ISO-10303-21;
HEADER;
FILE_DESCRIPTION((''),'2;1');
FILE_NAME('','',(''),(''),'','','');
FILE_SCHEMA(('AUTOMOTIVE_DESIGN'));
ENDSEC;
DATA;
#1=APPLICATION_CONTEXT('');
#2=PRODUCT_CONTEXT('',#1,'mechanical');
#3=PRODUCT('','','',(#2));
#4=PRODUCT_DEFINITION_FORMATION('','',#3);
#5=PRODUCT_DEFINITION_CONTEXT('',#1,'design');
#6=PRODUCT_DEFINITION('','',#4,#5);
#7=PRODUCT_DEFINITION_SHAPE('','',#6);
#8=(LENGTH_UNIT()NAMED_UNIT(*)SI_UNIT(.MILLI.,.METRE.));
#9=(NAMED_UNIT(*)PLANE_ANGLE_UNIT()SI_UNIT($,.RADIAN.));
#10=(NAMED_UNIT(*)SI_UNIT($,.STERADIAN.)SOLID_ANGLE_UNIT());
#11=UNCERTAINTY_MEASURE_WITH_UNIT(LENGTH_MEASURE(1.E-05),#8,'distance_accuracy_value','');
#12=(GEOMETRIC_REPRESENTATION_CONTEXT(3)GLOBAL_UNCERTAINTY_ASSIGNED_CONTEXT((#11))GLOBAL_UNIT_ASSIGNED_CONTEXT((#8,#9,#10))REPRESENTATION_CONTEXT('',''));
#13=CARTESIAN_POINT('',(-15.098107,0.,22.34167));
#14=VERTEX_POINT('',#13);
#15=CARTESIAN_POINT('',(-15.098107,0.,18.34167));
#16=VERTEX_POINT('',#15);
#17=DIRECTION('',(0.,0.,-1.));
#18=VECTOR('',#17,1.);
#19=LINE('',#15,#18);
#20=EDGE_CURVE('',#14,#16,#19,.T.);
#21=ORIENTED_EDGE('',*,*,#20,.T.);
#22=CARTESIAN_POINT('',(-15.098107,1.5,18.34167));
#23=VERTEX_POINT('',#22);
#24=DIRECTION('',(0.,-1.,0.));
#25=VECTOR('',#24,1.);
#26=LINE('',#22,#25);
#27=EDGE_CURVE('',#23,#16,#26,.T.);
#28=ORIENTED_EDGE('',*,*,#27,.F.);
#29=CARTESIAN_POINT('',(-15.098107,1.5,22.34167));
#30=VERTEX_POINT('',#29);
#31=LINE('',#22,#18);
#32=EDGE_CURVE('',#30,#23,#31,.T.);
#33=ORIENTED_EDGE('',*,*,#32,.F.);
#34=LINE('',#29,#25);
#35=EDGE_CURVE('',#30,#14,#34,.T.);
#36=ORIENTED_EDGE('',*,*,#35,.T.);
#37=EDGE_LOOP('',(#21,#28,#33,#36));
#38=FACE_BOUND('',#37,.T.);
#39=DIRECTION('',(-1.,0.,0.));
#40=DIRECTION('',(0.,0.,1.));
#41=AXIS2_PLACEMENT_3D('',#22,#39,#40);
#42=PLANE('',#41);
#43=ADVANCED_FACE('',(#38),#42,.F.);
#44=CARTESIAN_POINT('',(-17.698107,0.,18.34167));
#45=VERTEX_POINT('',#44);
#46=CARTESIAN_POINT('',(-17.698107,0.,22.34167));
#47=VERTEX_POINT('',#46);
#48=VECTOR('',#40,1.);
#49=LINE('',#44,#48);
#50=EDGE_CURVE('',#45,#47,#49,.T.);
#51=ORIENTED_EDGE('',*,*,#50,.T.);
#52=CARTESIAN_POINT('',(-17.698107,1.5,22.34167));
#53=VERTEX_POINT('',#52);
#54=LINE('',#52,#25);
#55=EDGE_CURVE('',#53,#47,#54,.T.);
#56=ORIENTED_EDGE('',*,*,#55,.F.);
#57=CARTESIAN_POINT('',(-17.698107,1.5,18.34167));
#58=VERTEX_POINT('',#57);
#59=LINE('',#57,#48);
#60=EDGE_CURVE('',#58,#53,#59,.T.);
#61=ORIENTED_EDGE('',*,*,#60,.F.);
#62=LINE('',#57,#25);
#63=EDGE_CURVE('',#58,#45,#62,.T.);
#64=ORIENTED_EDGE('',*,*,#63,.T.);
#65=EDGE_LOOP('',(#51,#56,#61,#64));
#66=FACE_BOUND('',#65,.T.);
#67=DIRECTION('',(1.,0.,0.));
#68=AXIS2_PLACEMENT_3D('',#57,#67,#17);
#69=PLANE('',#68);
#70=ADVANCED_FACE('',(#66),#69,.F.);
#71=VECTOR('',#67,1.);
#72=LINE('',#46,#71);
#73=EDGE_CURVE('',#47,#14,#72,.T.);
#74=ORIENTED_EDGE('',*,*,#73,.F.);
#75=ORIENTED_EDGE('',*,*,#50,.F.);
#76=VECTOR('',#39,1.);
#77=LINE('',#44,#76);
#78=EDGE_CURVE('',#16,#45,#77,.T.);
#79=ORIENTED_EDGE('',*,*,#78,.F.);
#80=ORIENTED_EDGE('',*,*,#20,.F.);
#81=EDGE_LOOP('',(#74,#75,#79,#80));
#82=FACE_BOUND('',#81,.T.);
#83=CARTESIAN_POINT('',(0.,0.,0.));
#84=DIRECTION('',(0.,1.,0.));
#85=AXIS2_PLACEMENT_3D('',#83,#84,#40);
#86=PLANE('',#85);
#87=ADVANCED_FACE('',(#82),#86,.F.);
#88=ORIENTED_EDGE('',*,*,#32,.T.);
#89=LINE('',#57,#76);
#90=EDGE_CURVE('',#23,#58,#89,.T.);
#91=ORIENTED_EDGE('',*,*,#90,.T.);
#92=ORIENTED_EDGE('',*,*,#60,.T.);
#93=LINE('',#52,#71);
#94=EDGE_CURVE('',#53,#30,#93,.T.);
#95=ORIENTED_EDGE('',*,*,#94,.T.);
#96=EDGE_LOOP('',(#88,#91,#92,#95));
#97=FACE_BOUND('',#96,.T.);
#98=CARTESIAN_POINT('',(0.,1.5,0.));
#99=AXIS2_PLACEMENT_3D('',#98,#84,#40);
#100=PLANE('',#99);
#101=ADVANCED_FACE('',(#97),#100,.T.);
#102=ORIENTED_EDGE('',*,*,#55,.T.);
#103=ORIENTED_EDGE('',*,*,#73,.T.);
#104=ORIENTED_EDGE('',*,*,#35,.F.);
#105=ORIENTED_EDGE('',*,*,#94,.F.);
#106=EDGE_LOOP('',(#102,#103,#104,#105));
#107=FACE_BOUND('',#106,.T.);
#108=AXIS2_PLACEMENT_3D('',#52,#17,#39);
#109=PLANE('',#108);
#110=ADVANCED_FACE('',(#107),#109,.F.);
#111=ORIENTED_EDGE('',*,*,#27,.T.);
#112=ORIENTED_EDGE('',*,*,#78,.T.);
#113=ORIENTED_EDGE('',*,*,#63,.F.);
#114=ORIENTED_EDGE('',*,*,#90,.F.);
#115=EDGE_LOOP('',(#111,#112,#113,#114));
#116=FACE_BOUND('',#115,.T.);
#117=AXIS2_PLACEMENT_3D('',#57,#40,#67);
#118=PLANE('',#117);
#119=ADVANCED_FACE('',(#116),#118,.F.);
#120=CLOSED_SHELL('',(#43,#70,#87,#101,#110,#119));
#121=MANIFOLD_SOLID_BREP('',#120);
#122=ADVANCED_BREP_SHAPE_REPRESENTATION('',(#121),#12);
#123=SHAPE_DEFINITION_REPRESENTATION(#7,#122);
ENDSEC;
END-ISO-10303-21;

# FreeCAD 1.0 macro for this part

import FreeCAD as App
import Part
import Sketcher
from FreeCAD import Vector
Q = App.Units.Quantity


def add_polygon(sketch, points):
    """Adds a closed chain of lines whose ends are joined by coincident constraints."""
    first, n = sketch.GeometryCount, len(points)
    for a, b in zip(points, points[1:] + points[:1]):
        sketch.addGeometry(Part.LineSegment(App.Vector(*a, 0), App.Vector(*b, 0)), False)
    for i in range(n):
        sketch.addConstraint(Sketcher.Constraint("Coincident", first + i, 2, first + (i + 1) % n, 1))

doc = App.newDocument("Part")
body = doc.addObject("PartDesign::Body", "Body")

# Sketch on XZ plane
sketch1 = doc.addObject("Sketcher::SketchObject", "Sketch")
body.addObject(sketch1)
sketch1.AttachmentSupport = (doc.XZ_Plane, [""])
sketch1.MapMode = "FlatFace"
add_polygon(sketch1, [(-17.7, 18.3), (-17.7, 22.3), (-15.1, 22.3), (-15.1, 18.3)])  # lines 0-3
sketch1.addConstraint([
    Sketcher.Constraint("Vertical", 0),
    Sketcher.Constraint("Horizontal", 1),
    Sketcher.Constraint("Vertical", 2),
    Sketcher.Constraint("Horizontal", 3),
    Sketcher.Constraint("DistanceY", 0, 1, 0, 2, Q("4 mm")),
    Sketcher.Constraint("DistanceX", 1, 1, 1, 2, Q("2.6 mm")),
    Sketcher.Constraint("DistanceY", -1, 1, 0, 2, Q("22.34167 mm")),
    Sketcher.Constraint("DistanceX", 0, 2, -1, 1, Q("17.698107 mm")),
])
pad1 = doc.addObject("PartDesign::Pad", "Pad")
body.addObject(pad1)
pad1.Profile = sketch1
pad1.Length = 1.5
pad1.Reversed = True

doc.recompute()
